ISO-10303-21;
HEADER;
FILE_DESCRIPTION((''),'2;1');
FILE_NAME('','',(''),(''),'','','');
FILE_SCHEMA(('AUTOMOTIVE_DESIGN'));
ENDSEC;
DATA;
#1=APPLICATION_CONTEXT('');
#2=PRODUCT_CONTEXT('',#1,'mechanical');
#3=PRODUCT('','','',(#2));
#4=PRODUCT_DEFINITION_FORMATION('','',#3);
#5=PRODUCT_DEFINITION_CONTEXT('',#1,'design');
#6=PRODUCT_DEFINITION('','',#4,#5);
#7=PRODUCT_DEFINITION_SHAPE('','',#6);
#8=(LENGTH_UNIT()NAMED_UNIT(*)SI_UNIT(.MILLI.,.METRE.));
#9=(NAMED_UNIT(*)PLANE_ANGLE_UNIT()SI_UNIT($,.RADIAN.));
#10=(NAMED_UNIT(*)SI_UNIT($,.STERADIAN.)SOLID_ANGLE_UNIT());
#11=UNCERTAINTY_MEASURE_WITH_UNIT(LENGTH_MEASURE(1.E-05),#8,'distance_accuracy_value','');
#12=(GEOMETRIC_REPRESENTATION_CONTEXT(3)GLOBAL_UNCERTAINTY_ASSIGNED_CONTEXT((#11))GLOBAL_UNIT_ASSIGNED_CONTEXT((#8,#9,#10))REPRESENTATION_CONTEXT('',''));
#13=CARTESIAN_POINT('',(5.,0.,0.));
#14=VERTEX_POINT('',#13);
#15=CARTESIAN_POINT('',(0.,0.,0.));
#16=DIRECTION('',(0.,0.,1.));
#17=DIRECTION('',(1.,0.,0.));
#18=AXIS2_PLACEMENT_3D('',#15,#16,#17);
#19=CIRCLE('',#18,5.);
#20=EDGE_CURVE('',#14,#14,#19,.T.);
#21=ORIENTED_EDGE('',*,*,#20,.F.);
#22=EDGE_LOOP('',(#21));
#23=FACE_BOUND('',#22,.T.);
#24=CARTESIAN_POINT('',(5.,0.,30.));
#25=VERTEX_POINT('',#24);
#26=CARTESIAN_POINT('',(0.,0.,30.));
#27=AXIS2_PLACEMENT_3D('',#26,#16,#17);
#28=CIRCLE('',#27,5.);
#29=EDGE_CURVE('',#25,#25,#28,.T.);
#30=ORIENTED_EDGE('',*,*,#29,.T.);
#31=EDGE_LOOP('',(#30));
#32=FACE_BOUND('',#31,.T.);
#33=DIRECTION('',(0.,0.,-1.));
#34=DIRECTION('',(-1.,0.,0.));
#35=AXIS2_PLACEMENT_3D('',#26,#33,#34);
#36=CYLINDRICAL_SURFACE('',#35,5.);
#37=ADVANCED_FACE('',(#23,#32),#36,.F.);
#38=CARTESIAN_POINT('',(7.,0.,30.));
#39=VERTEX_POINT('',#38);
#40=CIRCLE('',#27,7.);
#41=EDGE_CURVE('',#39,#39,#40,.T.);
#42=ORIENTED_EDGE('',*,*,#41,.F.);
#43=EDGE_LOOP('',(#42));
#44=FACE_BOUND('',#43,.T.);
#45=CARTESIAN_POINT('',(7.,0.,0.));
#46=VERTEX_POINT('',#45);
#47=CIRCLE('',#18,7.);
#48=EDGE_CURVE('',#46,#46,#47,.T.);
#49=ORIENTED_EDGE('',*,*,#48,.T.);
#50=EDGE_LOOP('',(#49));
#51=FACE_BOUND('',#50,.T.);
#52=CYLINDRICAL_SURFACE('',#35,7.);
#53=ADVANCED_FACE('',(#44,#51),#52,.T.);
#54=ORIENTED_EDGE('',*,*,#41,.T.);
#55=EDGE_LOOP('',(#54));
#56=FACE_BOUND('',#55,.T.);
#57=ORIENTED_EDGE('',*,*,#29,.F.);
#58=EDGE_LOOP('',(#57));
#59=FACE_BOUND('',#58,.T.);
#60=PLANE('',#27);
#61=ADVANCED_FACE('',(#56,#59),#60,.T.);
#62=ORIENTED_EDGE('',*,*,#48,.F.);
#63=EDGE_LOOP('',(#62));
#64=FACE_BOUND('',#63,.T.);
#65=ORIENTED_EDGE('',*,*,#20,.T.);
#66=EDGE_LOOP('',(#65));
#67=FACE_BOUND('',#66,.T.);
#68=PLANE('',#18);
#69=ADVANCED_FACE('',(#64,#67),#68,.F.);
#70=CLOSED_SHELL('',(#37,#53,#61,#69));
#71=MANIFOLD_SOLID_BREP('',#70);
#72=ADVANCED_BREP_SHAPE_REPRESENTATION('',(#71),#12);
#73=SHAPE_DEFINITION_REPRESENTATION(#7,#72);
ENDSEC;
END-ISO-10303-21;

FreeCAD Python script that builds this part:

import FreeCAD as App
import Part
import Sketcher

V = App.Vector

doc = App.newDocument("Part")
body = doc.addObject("PartDesign::Body", "Body")

# Sketch on XY plane
sketch1 = body.newObject("Sketcher::SketchObject", "Sketch")
sketch1.AttachmentSupport = (doc.getObject("XY_Plane"), [""])
sketch1.MapMode = "FlatFace"
sketch1.addGeometry([
    Part.Circle(V(0, 0, 0), V(0, 0, 1), 7),
    Part.Circle(V(0, 0, 0), V(0, 0, 1), 5),
], False)
sketch1.addConstraint([
    Sketcher.Constraint("Coincident", 0, 3, -1, 1),
    Sketcher.Constraint("Coincident", 1, 3, -1, 1),
    Sketcher.Constraint("Diameter", 0, 14.0),
    Sketcher.Constraint("Diameter", 1, 10.0),
])
pad1 = body.newObject("PartDesign::Pad", "Pad")
pad1.Profile = sketch1
pad1.Length = 30

doc.recompute()
